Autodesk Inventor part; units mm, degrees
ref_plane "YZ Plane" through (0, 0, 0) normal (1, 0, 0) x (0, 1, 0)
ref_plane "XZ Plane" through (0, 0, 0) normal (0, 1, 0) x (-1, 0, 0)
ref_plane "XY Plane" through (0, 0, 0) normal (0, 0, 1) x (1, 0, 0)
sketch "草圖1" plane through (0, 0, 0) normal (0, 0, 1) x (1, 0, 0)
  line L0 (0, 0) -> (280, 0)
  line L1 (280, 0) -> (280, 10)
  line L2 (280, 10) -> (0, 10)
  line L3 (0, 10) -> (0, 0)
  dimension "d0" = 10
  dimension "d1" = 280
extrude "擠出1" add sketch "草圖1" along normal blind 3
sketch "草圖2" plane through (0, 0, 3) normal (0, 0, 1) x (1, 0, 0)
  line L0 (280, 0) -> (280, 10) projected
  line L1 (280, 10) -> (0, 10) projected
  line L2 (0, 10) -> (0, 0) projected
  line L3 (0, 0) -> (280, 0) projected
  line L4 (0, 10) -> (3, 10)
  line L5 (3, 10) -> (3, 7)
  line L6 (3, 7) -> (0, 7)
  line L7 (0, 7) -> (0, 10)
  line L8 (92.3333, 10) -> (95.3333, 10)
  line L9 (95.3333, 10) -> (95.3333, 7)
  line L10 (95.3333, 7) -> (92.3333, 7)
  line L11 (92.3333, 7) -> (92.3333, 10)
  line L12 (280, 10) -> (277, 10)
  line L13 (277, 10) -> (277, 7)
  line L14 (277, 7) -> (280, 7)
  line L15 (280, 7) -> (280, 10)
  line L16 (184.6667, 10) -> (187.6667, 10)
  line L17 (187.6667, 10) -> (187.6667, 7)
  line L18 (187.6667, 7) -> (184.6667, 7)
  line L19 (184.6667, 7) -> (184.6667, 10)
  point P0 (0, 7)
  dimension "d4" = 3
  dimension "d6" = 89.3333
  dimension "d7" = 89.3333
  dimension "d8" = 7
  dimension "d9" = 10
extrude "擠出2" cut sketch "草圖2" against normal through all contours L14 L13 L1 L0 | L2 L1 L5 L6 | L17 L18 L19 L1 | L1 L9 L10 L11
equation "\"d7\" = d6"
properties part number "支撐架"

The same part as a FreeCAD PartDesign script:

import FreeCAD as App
import Part
import Sketcher
from FreeCAD import Vector
Q = App.Units.Quantity

doc = App.newDocument("Part")
body = doc.addObject("PartDesign::Body", "Body")

# Sketch on XY plane
sketch1 = body.newObject("Sketcher::SketchObject", "Sketch")
sketch1.AttachmentSupport = (doc.getObject("XY_Plane"), [""])
sketch1.MapMode = "FlatFace"
sketch1.addGeometry([
    Part.LineSegment(Vector(0, 10, 0), Vector(0, 0, 0)),
    Part.LineSegment(Vector(0, 0, 0), Vector(280, 0, 0)),
    Part.LineSegment(Vector(280, 0, 0), Vector(280, 10, 0)),
    Part.LineSegment(Vector(280, 10, 0), Vector(0, 10, 0)),
], False)
sketch1.addConstraint([
    Sketcher.Constraint("Coincident", 0, 2, 1, 1),
    Sketcher.Constraint("Coincident", 1, 2, 2, 1),
    Sketcher.Constraint("Coincident", 2, 2, 3, 1),
    Sketcher.Constraint("Coincident", 3, 2, 0, 1),
    Sketcher.Constraint("Vertical", 0),
    Sketcher.Constraint("Horizontal", 1),
    Sketcher.Constraint("Vertical", 2),
    Sketcher.Constraint("Horizontal", 3),
    Sketcher.Constraint("Coincident", 0, 2, -1, 1),
    Sketcher.Constraint("DistanceX", 1, 1, 1, 2, Q("280 mm")),
    Sketcher.Constraint("DistanceY", 0, 2, 0, 1, Q("10 mm")),
])
pad1 = body.newObject("PartDesign::Pad", "Pad")
pad1.Profile = sketch1
pad1.Length = 3

# Sketch on XY plane
sketch2 = body.newObject("Sketcher::SketchObject", "Sketch001")
sketch2.AttachmentSupport = (doc.getObject("XY_Plane"), [""])
sketch2.MapMode = "FlatFace"
sketch2.AttachmentOffset = App.Placement(Vector(0, 0, 3), App.Rotation())
sketch2.addGeometry([
    Part.LineSegment(Vector(277, 7, 0), Vector(280, 7, 0)),  # 0
    Part.LineSegment(Vector(280, 7, 0), Vector(280, 10, 0)),  # 1
    Part.LineSegment(Vector(280, 10, 0), Vector(277, 10, 0)),  # 2
    Part.LineSegment(Vector(277, 10, 0), Vector(277, 7, 0)),  # 3
    Part.LineSegment(Vector(0, 10, 0), Vector(0, 7, 0)),  # 4
    Part.LineSegment(Vector(0, 7, 0), Vector(3, 7, 0)),  # 5
    Part.LineSegment(Vector(3, 7, 0), Vector(3, 10, 0)),  # 6
    Part.LineSegment(Vector(3, 10, 0), Vector(0, 10, 0)),  # 7
    Part.LineSegment(Vector(187.6667, 7, 0), Vector(187.6667, 10, 0)),  # 8
    Part.LineSegment(Vector(187.6667, 10, 0), Vector(184.6667, 10, 0)),  # 9
    Part.LineSegment(Vector(184.6667, 10, 0), Vector(184.6667, 7, 0)),  # 10
    Part.LineSegment(Vector(184.6667, 7, 0), Vector(187.6667, 7, 0)),  # 11
    Part.LineSegment(Vector(95.3333, 10, 0), Vector(92.3333, 10, 0)),  # 12
    Part.LineSegment(Vector(92.3333, 10, 0), Vector(92.3333, 7, 0)),  # 13
    Part.LineSegment(Vector(92.3333, 7, 0), Vector(95.3333, 7, 0)),  # 14
    Part.LineSegment(Vector(95.3333, 7, 0), Vector(95.3333, 10, 0)),  # 15
], False)
sketch2.addConstraint([
    Sketcher.Constraint("Coincident", 0, 2, 1, 1),
    Sketcher.Constraint("Coincident", 1, 2, 2, 1),
    Sketcher.Constraint("Coincident", 2, 2, 3, 1),
    Sketcher.Constraint("Coincident", 3, 2, 0, 1),
    Sketcher.Constraint("Coincident", 4, 2, 5, 1),
    Sketcher.Constraint("Coincident", 5, 2, 6, 1),
    Sketcher.Constraint("Coincident", 6, 2, 7, 1),
    Sketcher.Constraint("Coincident", 7, 2, 4, 1),
    Sketcher.Constraint("Coincident", 8, 2, 9, 1),
    Sketcher.Constraint("Coincident", 9, 2, 10, 1),
    Sketcher.Constraint("Coincident", 10, 2, 11, 1),
    Sketcher.Constraint("Coincident", 11, 2, 8, 1),
    Sketcher.Constraint("Coincident", 12, 2, 13, 1),
    Sketcher.Constraint("Coincident", 13, 2, 14, 1),
    Sketcher.Constraint("Coincident", 14, 2, 15, 1),
    Sketcher.Constraint("Coincident", 15, 2, 12, 1),
    Sketcher.Constraint("Horizontal", 0),
    Sketcher.Constraint("Vertical", 1),
    Sketcher.Constraint("Horizontal", 2),
    Sketcher.Constraint("Vertical", 3),
    Sketcher.Constraint("Vertical", 4),
    Sketcher.Constraint("Horizontal", 5),
    Sketcher.Constraint("Vertical", 6),
    Sketcher.Constraint("Horizontal", 7),
    Sketcher.Constraint("Vertical", 8),
    Sketcher.Constraint("Horizontal", 9),
    Sketcher.Constraint("Vertical", 10),
    Sketcher.Constraint("Horizontal", 11),
    Sketcher.Constraint("Horizontal", 12),
    Sketcher.Constraint("Vertical", 13),
    Sketcher.Constraint("Horizontal", 14),
    Sketcher.Constraint("Vertical", 15),
    Sketcher.Constraint("PointOnObject", 4, 2, -2),
    Sketcher.Constraint("Horizontal", 3, 2, 4, 2),
    Sketcher.Constraint("Horizontal", 2, 2, 6, 2),
    Sketcher.Constraint("Horizontal", 7, 2, 8, 2),
    Sketcher.Constraint("Horizontal", 5, 2, 10, 2),
    Sketcher.Constraint("Horizontal", 9, 2, 12, 2),
    Sketcher.Constraint("Horizontal", 11, 2, 13, 2),
    Sketcher.Constraint("Equal", 2, 5),
    Sketcher.Constraint("Equal", 7, 9),
    Sketcher.Constraint("Equal", 11, 12),
    Sketcher.Constraint("Equal", 14, 1),
    Sketcher.Constraint("DistanceX", 0, 1, 0, 2, Q("3 mm")),
    Sketcher.Constraint("DistanceY", -1, 1, 0, 2, Q("7 mm")),
    Sketcher.Constraint("DistanceX", -1, 1, 0, 2, Q("280 mm")),
    Sketcher.Constraint("DistanceX", 8, 2, 2, 2, Q("89.3333 mm")),
    Sketcher.Constraint("DistanceX", 6, 2, 12, 2, Q("89.3333 mm")),
])
pocket1 = body.newObject("PartDesign::Pocket", "Pocket")
pocket1.Profile = sketch2
pocket1.Type = "ThroughAll"

doc.recompute()
